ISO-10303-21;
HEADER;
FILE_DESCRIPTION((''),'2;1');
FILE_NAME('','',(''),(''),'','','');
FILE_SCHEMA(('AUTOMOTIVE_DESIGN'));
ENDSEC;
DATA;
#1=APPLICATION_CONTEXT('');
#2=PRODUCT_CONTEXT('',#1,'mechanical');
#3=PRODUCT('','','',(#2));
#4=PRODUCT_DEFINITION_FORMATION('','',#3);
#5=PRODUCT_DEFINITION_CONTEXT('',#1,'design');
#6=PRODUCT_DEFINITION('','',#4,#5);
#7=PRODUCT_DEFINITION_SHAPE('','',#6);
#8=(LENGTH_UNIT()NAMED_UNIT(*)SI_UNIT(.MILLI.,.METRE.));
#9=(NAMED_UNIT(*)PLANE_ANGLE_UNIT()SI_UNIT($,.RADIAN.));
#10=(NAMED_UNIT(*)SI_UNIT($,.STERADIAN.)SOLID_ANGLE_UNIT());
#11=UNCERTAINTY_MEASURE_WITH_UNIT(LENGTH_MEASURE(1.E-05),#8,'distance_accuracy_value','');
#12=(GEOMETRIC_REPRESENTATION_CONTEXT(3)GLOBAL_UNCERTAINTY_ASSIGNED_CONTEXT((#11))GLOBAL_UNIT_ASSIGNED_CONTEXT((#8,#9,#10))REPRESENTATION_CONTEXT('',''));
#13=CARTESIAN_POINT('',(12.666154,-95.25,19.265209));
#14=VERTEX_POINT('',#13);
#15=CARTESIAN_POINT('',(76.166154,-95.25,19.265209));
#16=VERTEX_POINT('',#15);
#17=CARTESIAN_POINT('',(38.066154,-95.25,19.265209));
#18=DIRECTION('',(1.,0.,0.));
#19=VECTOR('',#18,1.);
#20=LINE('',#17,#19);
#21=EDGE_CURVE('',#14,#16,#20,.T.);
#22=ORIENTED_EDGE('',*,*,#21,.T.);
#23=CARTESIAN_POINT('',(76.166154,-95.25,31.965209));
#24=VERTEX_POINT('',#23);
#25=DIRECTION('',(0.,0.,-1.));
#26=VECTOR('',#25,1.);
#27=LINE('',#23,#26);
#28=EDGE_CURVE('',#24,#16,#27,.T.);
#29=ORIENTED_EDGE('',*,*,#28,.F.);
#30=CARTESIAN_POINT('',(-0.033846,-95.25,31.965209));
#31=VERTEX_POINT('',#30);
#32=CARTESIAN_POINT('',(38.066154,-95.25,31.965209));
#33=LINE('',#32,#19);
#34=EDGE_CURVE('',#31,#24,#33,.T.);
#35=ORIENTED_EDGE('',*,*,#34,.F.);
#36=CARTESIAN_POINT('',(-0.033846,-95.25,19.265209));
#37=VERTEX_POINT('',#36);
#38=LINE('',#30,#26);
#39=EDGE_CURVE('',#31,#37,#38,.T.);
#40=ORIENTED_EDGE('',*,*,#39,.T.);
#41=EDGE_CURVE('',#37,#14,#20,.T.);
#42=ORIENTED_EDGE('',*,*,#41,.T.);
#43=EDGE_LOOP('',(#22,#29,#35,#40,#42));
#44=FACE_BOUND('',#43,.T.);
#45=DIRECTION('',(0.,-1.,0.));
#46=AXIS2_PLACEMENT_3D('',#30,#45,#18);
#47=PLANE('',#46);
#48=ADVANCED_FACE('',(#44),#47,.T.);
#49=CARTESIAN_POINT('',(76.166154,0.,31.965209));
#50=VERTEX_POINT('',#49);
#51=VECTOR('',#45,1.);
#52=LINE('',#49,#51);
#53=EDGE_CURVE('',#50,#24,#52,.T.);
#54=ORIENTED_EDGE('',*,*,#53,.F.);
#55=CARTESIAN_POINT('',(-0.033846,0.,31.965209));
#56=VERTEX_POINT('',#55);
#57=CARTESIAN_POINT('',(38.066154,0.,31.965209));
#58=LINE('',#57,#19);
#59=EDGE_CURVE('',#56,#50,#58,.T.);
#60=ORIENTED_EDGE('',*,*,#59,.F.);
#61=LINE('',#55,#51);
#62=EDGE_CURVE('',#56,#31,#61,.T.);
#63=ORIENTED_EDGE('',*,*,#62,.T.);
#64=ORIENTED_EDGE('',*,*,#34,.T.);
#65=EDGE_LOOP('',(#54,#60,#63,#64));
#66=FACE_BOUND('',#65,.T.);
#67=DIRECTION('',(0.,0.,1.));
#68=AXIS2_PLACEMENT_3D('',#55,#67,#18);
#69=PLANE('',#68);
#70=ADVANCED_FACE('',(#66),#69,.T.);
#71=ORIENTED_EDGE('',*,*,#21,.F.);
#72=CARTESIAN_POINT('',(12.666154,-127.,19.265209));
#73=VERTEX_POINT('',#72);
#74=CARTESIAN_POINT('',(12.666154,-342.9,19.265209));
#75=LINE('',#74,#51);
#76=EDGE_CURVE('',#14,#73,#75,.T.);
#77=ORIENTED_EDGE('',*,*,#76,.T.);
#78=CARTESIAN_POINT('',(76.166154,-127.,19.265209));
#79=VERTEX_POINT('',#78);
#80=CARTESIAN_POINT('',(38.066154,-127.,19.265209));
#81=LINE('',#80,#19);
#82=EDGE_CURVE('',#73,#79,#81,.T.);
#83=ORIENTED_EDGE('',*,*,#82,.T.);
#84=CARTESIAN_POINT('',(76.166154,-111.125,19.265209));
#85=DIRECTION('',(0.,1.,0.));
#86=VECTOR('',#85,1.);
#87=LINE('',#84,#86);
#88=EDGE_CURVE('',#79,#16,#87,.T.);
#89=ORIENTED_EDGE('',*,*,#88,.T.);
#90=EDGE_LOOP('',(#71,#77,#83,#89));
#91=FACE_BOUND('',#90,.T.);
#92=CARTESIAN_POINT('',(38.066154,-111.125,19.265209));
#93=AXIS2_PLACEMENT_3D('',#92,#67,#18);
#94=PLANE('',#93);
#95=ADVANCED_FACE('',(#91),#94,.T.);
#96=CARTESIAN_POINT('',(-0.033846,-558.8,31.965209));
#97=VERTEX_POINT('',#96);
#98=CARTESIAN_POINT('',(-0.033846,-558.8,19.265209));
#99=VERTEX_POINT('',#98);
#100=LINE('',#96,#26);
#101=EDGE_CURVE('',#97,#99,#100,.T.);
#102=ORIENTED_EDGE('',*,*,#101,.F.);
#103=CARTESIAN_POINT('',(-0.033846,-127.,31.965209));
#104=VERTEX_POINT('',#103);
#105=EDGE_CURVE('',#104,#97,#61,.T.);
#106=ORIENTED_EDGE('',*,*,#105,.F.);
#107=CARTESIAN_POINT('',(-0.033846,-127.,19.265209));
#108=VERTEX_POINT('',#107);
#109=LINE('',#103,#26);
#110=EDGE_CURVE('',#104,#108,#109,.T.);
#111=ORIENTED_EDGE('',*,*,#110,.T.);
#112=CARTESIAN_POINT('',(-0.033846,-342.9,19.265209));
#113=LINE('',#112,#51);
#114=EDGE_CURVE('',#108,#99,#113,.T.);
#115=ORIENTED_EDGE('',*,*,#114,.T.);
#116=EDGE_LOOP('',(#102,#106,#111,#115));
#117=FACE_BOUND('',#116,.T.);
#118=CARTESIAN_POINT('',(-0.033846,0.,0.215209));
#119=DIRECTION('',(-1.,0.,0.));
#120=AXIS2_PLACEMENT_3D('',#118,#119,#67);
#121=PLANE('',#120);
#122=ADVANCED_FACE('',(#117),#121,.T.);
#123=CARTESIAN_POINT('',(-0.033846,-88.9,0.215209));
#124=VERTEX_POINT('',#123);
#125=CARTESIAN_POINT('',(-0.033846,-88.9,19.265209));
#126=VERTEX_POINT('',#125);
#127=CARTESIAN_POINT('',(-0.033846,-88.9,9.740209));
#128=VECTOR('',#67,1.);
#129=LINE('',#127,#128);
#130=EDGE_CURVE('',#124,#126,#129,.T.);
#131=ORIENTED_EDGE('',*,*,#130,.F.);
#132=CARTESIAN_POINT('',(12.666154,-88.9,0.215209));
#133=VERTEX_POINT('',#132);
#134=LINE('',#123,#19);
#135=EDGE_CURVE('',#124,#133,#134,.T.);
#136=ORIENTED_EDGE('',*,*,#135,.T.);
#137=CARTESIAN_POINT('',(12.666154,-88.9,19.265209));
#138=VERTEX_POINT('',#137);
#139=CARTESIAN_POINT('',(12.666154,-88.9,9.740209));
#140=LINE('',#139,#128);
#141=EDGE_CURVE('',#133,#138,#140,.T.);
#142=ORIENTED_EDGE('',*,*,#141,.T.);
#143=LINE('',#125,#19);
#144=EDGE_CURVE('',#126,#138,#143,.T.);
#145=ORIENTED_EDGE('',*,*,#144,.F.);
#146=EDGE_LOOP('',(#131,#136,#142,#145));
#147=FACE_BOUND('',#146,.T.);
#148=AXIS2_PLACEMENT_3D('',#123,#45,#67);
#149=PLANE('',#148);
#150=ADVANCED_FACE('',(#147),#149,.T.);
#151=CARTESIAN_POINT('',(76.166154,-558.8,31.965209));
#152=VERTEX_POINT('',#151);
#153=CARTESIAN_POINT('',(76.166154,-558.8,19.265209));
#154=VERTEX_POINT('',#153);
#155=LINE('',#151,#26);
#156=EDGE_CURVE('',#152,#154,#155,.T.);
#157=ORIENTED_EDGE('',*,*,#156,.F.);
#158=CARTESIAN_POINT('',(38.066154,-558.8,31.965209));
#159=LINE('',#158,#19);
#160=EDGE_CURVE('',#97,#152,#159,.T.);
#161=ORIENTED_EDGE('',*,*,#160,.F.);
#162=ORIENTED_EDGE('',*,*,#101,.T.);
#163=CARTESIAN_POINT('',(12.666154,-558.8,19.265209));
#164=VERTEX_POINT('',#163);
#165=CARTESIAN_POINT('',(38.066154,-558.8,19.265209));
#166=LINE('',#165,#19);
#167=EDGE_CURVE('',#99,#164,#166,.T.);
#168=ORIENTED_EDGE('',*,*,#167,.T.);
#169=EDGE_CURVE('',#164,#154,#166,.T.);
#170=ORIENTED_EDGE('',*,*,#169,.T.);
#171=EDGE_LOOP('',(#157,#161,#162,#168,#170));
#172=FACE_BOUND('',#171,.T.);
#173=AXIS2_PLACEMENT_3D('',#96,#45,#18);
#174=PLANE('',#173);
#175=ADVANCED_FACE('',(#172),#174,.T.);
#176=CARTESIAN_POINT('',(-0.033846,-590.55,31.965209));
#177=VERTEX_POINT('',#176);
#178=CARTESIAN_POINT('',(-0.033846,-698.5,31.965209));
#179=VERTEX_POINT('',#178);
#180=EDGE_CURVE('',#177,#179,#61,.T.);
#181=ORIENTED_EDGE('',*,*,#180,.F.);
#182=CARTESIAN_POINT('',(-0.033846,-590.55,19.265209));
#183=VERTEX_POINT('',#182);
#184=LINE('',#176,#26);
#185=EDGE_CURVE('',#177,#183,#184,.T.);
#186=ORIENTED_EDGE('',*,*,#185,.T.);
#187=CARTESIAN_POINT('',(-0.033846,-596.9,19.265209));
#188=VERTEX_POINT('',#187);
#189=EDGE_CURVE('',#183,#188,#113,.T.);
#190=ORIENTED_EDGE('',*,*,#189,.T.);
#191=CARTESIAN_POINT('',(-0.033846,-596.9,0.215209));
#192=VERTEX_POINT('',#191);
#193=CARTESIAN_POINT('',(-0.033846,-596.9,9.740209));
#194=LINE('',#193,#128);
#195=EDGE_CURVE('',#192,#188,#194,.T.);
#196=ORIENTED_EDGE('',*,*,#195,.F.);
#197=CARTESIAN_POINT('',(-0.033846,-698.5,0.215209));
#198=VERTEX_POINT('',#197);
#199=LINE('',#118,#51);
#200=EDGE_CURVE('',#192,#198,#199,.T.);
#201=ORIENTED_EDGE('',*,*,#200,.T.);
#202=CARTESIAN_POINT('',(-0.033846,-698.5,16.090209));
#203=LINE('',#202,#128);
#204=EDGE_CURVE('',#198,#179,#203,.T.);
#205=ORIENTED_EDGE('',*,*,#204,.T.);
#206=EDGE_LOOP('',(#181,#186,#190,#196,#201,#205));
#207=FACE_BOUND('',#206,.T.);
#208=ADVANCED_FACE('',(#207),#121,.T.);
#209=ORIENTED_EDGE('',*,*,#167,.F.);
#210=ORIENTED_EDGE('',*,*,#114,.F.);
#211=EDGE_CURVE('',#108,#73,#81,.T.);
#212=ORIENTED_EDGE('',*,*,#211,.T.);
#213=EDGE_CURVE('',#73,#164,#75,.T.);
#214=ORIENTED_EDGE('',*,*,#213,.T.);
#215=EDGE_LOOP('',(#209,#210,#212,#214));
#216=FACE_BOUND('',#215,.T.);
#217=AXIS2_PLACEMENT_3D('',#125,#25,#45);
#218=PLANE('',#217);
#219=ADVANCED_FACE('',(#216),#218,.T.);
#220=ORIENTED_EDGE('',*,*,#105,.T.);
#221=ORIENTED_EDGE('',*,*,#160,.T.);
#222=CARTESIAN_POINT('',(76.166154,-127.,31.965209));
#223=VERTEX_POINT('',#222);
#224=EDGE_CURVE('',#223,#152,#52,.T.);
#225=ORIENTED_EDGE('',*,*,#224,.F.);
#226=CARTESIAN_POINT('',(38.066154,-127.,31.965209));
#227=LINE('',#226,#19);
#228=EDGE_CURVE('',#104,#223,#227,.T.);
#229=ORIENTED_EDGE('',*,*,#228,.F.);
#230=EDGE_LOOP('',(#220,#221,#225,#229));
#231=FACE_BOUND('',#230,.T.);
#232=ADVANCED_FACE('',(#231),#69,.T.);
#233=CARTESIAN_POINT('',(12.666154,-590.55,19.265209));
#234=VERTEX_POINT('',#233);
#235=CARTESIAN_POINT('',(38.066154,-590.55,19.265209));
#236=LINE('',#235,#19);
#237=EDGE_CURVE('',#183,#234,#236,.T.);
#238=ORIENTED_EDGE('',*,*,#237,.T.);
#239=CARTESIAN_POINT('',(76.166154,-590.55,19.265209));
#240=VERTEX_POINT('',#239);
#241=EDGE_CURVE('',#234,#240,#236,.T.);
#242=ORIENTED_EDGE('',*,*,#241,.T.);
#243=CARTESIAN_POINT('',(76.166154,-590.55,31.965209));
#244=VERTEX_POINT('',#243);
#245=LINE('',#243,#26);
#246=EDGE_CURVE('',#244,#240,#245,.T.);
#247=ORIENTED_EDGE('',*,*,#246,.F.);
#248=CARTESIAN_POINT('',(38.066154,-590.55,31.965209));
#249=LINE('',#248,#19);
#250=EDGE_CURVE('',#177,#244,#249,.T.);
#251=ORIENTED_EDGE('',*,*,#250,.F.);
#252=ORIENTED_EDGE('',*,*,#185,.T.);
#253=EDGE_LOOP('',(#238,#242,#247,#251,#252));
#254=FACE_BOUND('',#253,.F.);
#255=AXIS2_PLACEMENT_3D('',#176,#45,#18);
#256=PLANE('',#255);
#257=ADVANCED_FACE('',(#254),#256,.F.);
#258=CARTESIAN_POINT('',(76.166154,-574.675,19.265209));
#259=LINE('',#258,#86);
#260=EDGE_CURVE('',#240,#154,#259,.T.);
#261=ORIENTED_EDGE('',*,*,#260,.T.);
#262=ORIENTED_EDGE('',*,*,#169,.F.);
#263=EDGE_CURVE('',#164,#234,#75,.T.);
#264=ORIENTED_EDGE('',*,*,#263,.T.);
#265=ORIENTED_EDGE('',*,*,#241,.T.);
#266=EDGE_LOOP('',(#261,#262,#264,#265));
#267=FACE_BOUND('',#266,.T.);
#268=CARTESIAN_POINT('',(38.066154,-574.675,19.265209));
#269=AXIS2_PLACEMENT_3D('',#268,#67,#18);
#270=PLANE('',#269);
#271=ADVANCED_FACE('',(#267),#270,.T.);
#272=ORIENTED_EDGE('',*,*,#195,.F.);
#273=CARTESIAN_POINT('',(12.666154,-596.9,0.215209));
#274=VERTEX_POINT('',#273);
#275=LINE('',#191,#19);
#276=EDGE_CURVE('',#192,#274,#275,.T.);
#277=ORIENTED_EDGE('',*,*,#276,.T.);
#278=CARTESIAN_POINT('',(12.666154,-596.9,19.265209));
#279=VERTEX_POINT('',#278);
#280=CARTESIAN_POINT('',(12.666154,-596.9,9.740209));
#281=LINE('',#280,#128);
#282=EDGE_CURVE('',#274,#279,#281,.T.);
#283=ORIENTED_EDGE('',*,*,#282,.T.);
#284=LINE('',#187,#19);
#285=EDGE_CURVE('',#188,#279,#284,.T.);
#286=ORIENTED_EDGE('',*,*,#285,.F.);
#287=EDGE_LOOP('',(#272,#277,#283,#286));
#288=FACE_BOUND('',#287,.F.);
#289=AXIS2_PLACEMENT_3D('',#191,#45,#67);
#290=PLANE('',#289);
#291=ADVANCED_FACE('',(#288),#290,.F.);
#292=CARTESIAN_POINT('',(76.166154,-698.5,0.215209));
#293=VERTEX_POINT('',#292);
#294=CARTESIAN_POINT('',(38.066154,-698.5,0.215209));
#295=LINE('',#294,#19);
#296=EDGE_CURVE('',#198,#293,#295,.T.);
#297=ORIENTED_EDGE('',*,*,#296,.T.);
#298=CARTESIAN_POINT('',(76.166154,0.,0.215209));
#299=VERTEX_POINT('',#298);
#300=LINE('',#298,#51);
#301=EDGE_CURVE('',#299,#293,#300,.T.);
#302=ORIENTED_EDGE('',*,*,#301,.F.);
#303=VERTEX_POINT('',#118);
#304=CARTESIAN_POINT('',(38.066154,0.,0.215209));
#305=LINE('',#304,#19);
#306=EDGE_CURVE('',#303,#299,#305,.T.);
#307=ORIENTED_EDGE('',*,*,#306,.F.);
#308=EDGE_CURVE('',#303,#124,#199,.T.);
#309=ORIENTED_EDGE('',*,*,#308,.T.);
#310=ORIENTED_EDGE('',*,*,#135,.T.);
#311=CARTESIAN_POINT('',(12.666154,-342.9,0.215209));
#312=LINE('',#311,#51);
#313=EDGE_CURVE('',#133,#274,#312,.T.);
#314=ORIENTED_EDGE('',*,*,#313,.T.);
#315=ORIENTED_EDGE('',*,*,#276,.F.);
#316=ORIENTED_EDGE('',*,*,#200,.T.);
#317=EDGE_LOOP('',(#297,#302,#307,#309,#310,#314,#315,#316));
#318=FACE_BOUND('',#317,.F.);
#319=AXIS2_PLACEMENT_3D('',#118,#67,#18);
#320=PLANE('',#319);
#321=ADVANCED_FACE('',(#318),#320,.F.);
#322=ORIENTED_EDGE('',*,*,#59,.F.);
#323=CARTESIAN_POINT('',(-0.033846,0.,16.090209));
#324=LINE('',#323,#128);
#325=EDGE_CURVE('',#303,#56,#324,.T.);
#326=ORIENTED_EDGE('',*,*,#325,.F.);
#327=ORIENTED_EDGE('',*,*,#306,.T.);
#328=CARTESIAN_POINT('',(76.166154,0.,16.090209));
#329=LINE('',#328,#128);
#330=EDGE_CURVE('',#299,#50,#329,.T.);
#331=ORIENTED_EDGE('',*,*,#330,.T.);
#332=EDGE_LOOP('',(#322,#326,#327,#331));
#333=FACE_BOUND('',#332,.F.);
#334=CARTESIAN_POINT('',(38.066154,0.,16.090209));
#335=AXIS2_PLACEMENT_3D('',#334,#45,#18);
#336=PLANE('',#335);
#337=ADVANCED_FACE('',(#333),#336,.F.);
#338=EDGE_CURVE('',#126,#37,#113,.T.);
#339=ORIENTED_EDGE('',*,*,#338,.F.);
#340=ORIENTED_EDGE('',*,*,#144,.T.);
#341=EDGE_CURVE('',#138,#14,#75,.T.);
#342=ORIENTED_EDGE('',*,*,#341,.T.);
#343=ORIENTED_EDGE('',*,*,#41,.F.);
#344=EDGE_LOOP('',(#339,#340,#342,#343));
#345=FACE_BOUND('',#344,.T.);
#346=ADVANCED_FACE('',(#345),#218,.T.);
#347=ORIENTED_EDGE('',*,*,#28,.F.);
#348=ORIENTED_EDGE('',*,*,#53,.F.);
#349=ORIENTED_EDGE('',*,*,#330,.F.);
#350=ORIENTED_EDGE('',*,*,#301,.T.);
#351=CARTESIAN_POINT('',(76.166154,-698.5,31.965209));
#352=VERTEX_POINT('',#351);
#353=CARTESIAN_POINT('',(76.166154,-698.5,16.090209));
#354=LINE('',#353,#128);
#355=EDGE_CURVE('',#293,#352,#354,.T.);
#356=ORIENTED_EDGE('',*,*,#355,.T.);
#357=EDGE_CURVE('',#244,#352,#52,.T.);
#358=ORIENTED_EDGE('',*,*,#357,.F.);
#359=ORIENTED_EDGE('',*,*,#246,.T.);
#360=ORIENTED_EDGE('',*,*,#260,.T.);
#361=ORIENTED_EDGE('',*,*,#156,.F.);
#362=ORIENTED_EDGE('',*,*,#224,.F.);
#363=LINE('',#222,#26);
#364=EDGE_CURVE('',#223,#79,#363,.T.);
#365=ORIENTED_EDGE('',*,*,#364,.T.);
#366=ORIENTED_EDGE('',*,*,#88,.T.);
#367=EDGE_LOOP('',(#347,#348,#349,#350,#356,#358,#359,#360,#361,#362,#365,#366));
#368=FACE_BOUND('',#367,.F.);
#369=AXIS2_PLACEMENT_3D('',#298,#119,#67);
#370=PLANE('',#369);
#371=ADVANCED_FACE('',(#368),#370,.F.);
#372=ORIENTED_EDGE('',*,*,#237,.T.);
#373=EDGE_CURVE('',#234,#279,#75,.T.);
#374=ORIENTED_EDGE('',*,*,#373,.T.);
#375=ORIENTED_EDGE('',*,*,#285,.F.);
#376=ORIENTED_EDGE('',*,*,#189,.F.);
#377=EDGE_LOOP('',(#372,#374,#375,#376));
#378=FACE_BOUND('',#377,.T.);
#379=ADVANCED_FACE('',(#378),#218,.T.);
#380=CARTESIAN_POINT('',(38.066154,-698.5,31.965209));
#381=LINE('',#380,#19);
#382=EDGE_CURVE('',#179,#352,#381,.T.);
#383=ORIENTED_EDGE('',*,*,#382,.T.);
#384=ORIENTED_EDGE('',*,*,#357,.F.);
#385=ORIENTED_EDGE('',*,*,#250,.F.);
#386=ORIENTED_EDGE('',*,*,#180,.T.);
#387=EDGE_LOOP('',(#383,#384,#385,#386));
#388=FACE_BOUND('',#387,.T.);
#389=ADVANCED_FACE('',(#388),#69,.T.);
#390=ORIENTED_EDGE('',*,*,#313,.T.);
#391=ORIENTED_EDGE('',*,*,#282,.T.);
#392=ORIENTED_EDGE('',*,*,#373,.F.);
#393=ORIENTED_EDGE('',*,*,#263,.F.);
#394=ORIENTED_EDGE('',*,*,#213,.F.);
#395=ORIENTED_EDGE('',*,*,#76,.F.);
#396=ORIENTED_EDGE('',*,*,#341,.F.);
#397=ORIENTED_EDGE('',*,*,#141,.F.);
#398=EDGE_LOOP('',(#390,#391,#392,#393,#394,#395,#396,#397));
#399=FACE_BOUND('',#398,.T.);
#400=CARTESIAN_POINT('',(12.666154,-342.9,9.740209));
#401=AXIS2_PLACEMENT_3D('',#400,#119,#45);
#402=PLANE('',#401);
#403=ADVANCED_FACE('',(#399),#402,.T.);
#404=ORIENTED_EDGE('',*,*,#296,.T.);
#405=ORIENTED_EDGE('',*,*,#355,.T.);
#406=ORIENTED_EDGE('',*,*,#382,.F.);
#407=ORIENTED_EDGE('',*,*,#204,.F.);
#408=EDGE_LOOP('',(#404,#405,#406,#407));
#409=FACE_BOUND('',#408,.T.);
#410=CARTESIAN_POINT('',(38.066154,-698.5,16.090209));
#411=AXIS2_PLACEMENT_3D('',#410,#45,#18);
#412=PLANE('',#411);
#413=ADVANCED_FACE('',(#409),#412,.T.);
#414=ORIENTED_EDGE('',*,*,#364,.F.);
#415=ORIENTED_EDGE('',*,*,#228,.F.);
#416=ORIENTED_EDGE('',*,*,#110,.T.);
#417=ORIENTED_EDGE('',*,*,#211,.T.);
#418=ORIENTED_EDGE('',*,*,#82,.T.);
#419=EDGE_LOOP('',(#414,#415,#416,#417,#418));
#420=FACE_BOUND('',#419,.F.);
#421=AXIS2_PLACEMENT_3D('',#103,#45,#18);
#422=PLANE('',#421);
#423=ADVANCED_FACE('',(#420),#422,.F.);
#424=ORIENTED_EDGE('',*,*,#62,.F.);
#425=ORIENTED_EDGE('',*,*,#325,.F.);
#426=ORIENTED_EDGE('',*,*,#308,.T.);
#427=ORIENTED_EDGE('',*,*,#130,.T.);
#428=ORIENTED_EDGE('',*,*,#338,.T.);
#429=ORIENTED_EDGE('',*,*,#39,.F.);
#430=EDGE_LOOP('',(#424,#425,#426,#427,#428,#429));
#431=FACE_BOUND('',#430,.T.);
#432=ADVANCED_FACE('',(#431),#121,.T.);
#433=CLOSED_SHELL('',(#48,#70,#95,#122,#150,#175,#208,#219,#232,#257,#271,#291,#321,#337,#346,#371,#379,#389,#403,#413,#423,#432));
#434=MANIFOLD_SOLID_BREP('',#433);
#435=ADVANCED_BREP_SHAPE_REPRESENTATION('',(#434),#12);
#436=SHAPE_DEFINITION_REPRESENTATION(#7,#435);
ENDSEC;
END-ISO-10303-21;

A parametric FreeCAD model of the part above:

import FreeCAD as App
import Part
import Sketcher
Q = App.Units.Quantity


def add_polygon(sketch, points):
    """Adds a closed chain of lines whose ends are joined by coincident constraints."""
    first, n = sketch.GeometryCount, len(points)
    for a, b in zip(points, points[1:] + points[:1]):
        sketch.addGeometry(Part.LineSegment(App.Vector(*a, 0), App.Vector(*b, 0)), False)
    for i in range(n):
        sketch.addConstraint(Sketcher.Constraint("Coincident", first + i, 2, first + (i + 1) % n, 1))

doc = App.newDocument("Part")
body = doc.addObject("PartDesign::Body", "Body")

sketch1 = body.newObject("Sketcher::SketchObject", "Sketch")
sketch1.AttachmentSupport = (doc.getObject("XZ_Plane"), [""])
sketch1.MapMode = "FlatFace"
add_polygon(sketch1, [(0, 32), (0, 0), (76, 0), (76, 32)])
sketch1.addConstraint(Sketcher.Constraint("Vertical", 0))
sketch1.addConstraint(Sketcher.Constraint("Horizontal", 1))
sketch1.addConstraint(Sketcher.Constraint("Vertical", 2))
sketch1.addConstraint(Sketcher.Constraint("Horizontal", 3))
sketch1.addConstraint(Sketcher.Constraint("DistanceX", 1, 1, 1, 2, Q("3 in")))
sketch1.addConstraint(Sketcher.Constraint("DistanceY", 0, 2, 0, 1, Q("1.25 in")))
sketch1.addConstraint(Sketcher.Constraint("DistanceY", -1, 1, 0, 2, 0.215209))
sketch1.addConstraint(Sketcher.Constraint("DistanceX", 0, 2, -1, 1, 0.033846))
pad1 = body.newObject("PartDesign::Pad", "Pad")
pad1.Profile = sketch1
pad1.Length = Q("27.5 in")

sketch2 = body.newObject("Sketcher::SketchObject", "Sketch001")
sketch2.AttachmentSupport = (doc.getObject("YZ_Plane"), [""])
sketch2.MapMode = "FlatFace"
sketch2.AttachmentOffset = App.Placement(App.Vector(0, 0, -0.033846), App.Rotation())
add_polygon(sketch2, [(-89, 19), (-89, 0), (-597, 0), (-597, 19)])
sketch2.addConstraint(Sketcher.Constraint("Vertical", 0))
sketch2.addConstraint(Sketcher.Constraint("Horizontal", 1))
sketch2.addConstraint(Sketcher.Constraint("Vertical", 2))
sketch2.addConstraint(Sketcher.Constraint("Horizontal", 3))
sketch2.addConstraint(Sketcher.Constraint("DistanceX", 1, 2, 1, 1, Q("20 in")))
sketch2.addConstraint(Sketcher.Constraint("DistanceY", 0, 2, 0, 1, Q("0.75 in")))
sketch2.addConstraint(Sketcher.Constraint("DistanceX", 0, 2, -1, 1, Q("3.5 in")))
sketch2.addConstraint(Sketcher.Constraint("DistanceY", -1, 1, 0, 2, 0.215209))
pocket1 = body.newObject("PartDesign::Pocket", "Pocket")
pocket1.Profile = sketch2
pocket1.Length = Q("0.5 in")
pocket1.Reversed = True

sketch3 = body.newObject("Sketcher::SketchObject", "Sketch002")
sketch3.AttachmentSupport = (doc.getObject("XY_Plane"), [""])
sketch3.MapMode = "FlatFace"
sketch3.AttachmentOffset = App.Placement(App.Vector(0, 0, 31.965209), App.Rotation())
add_polygon(sketch3, [(0, -559), (0, -591), (76, -591), (76, -559)])
add_polygon(sketch3, [(0, -95), (0, -127), (76, -127), (76, -95)])
sketch3.addConstraint(Sketcher.Constraint("Vertical", 0))
sketch3.addConstraint(Sketcher.Constraint("Horizontal", 1))
sketch3.addConstraint(Sketcher.Constraint("Vertical", 2))
sketch3.addConstraint(Sketcher.Constraint("Horizontal", 3))
sketch3.addConstraint(Sketcher.Constraint("Vertical", 4))
sketch3.addConstraint(Sketcher.Constraint("Horizontal", 5))
sketch3.addConstraint(Sketcher.Constraint("Vertical", 6))
sketch3.addConstraint(Sketcher.Constraint("Horizontal", 7))
sketch3.addConstraint(Sketcher.Constraint("Vertical", 3, 2, 4, 2))
sketch3.addConstraint(Sketcher.Constraint("Vertical", 2, 2, 5, 2))
sketch3.addConstraint(Sketcher.Constraint("Equal", 2, 4))
sketch3.addConstraint(Sketcher.Constraint("DistanceX", 1, 1, 1, 2, Q("3 in")))
sketch3.addConstraint(Sketcher.Constraint("DistanceY", 2, 2, -1, 1, Q("22 in")))
sketch3.addConstraint(Sketcher.Constraint("DistanceY", 4, 2, -1, 1, Q("5 in")))
sketch3.addConstraint(Sketcher.Constraint("DistanceY", 0, 2, 0, 1, Q("1.25 in")))
sketch3.addConstraint(Sketcher.Constraint("DistanceX", 0, 2, -1, 1, 0.033846))
pocket2 = body.newObject("PartDesign::Pocket", "Pocket001")
pocket2.Profile = sketch3
pocket2.Length = Q("0.5 in")

doc.recompute()
